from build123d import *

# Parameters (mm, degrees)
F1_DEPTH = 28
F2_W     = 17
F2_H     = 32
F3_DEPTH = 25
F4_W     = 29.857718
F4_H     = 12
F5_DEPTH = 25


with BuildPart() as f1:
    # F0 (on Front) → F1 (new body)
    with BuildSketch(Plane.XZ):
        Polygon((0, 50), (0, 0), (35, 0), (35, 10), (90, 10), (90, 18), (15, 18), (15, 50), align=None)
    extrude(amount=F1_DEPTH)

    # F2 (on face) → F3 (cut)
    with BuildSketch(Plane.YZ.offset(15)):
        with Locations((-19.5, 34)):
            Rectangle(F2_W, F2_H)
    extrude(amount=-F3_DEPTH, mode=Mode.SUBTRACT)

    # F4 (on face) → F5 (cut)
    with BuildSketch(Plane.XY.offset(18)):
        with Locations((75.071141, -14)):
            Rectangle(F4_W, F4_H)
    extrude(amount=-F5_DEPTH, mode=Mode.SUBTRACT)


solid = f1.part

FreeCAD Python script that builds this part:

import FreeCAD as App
import Part
import Sketcher
from FreeCAD import Vector
Q = App.Units.Quantity

doc = App.newDocument("Part")
body = doc.addObject("PartDesign::Body", "Body")

# Sketch on XZ plane
sketch1 = body.newObject("Sketcher::SketchObject", "Sketch")
sketch1.AttachmentSupport = (doc.getObject("XZ_Plane"), [""])
sketch1.MapMode = "FlatFace"
sketch1.addGeometry(Part.LineSegment(Vector(0, 50, 0), Vector(0, 0, 0)), False)
sketch1.addGeometry(Part.LineSegment(Vector(0, 0, 0), Vector(35, 0, 0)), False)
sketch1.addGeometry(Part.LineSegment(Vector(35, 0, 0), Vector(35, 10, 0)), False)
sketch1.addGeometry(Part.LineSegment(Vector(35, 10, 0), Vector(90, 10, 0)), False)
sketch1.addGeometry(Part.LineSegment(Vector(90, 10, 0), Vector(90, 18, 0)), False)
sketch1.addGeometry(Part.LineSegment(Vector(90, 18, 0), Vector(15, 18, 0)), False)
sketch1.addGeometry(Part.LineSegment(Vector(15, 18, 0), Vector(15, 50, 0)), False)
sketch1.addGeometry(Part.LineSegment(Vector(15, 50, 0), Vector(0, 50, 0)), False)
sketch1.addConstraint(Sketcher.Constraint("Coincident", 0, 2, 1, 1))
sketch1.addConstraint(Sketcher.Constraint("Coincident", 1, 2, 2, 1))
sketch1.addConstraint(Sketcher.Constraint("Coincident", 2, 2, 3, 1))
sketch1.addConstraint(Sketcher.Constraint("Coincident", 3, 2, 4, 1))
sketch1.addConstraint(Sketcher.Constraint("Coincident", 4, 2, 5, 1))
sketch1.addConstraint(Sketcher.Constraint("Coincident", 5, 2, 6, 1))
sketch1.addConstraint(Sketcher.Constraint("Coincident", 6, 2, 7, 1))
sketch1.addConstraint(Sketcher.Constraint("Coincident", 7, 2, 0, 1))
sketch1.addConstraint(Sketcher.Constraint("Vertical", 0))
sketch1.addConstraint(Sketcher.Constraint("Horizontal", 1))
sketch1.addConstraint(Sketcher.Constraint("Vertical", 2))
sketch1.addConstraint(Sketcher.Constraint("Horizontal", 3))
sketch1.addConstraint(Sketcher.Constraint("Vertical", 4))
sketch1.addConstraint(Sketcher.Constraint("Horizontal", 5))
sketch1.addConstraint(Sketcher.Constraint("Vertical", 6))
sketch1.addConstraint(Sketcher.Constraint("Horizontal", 7))
sketch1.addConstraint(Sketcher.Constraint("Coincident", 0, 2, -1, 1))
sketch1.addConstraint(Sketcher.Constraint("DistanceX", 1, 1, 1, 2, Q("35 mm")))
sketch1.addConstraint(Sketcher.Constraint("DistanceX", 3, 1, 3, 2, Q("55 mm")))
sketch1.addConstraint(Sketcher.Constraint("DistanceX", 5, 2, 5, 1, Q("75 mm")))
sketch1.addConstraint(Sketcher.Constraint("DistanceY", 0, 2, 0, 1, Q("50 mm")))
sketch1.addConstraint(Sketcher.Constraint("DistanceY", 2, 1, 2, 2, Q("10 mm")))
sketch1.addConstraint(Sketcher.Constraint("DistanceY", 4, 1, 4, 2, Q("8 mm")))
pad1 = body.newObject("PartDesign::Pad", "Pad")
pad1.Profile = sketch1
pad1.Length = 28

# Sketch on YZ plane
sketch2 = body.newObject("Sketcher::SketchObject", "Sketch001")
sketch2.AttachmentSupport = (doc.getObject("YZ_Plane"), [""])
sketch2.MapMode = "FlatFace"
sketch2.AttachmentOffset = App.Placement(Vector(0, 0, 15), App.Rotation())
sketch2.addGeometry(Part.LineSegment(Vector(-28, 50, 0), Vector(-28, 18, 0)), False)
sketch2.addGeometry(Part.LineSegment(Vector(-28, 18, 0), Vector(-11, 18, 0)), False)
sketch2.addGeometry(Part.LineSegment(Vector(-11, 18, 0), Vector(-11, 50, 0)), False)
sketch2.addGeometry(Part.LineSegment(Vector(-11, 50, 0), Vector(-28, 50, 0)), False)
sketch2.addConstraint(Sketcher.Constraint("Coincident", 0, 2, 1, 1))
sketch2.addConstraint(Sketcher.Constraint("Coincident", 1, 2, 2, 1))
sketch2.addConstraint(Sketcher.Constraint("Coincident", 2, 2, 3, 1))
sketch2.addConstraint(Sketcher.Constraint("Coincident", 3, 2, 0, 1))
sketch2.addConstraint(Sketcher.Constraint("Vertical", 0))
sketch2.addConstraint(Sketcher.Constraint("Horizontal", 1))
sketch2.addConstraint(Sketcher.Constraint("Vertical", 2))
sketch2.addConstraint(Sketcher.Constraint("Horizontal", 3))
sketch2.addConstraint(Sketcher.Constraint("DistanceX", 1, 1, 1, 2, Q("17 mm")))
sketch2.addConstraint(Sketcher.Constraint("DistanceY", 0, 2, 0, 1, Q("32 mm")))
sketch2.addConstraint(Sketcher.Constraint("DistanceX", 0, 2, -1, 1, Q("28 mm")))
sketch2.addConstraint(Sketcher.Constraint("DistanceY", -1, 1, 0, 2, Q("18 mm")))
pocket1 = body.newObject("PartDesign::Pocket", "Pocket")
pocket1.Profile = sketch2
pocket1.Length = 25

# Sketch on XY plane
sketch3 = body.newObject("Sketcher::SketchObject", "Sketch002")
sketch3.AttachmentSupport = (doc.getObject("XY_Plane"), [""])
sketch3.MapMode = "FlatFace"
sketch3.AttachmentOffset = App.Placement(Vector(0, 0, 18), App.Rotation())
sketch3.addGeometry(Part.LineSegment(Vector(60.142282, -8, 0), Vector(60.142282, -20, 0)), False)
sketch3.addGeometry(Part.LineSegment(Vector(60.142282, -20, 0), Vector(90, -20, 0)), False)
sketch3.addGeometry(Part.LineSegment(Vector(90, -20, 0), Vector(90, -8, 0)), False)
sketch3.addGeometry(Part.LineSegment(Vector(90, -8, 0), Vector(60.142282, -8, 0)), False)
sketch3.addConstraint(Sketcher.Constraint("Coincident", 0, 2, 1, 1))
sketch3.addConstraint(Sketcher.Constraint("Coincident", 1, 2, 2, 1))
sketch3.addConstraint(Sketcher.Constraint("Coincident", 2, 2, 3, 1))
sketch3.addConstraint(Sketcher.Constraint("Coincident", 3, 2, 0, 1))
sketch3.addConstraint(Sketcher.Constraint("Vertical", 0))
sketch3.addConstraint(Sketcher.Constraint("Horizontal", 1))
sketch3.addConstraint(Sketcher.Constraint("Vertical", 2))
sketch3.addConstraint(Sketcher.Constraint("Horizontal", 3))
sketch3.addConstraint(Sketcher.Constraint("DistanceY", 0, 2, 0, 1, Q("12 mm")))
sketch3.addConstraint(Sketcher.Constraint("DistanceY", 0, 2, -1, 1, Q("20 mm")))
sketch3.addConstraint(Sketcher.Constraint("DistanceX", -1, 1, 1, 2, Q("90 mm")))
sketch3.addConstraint(Sketcher.Constraint("DistanceX", 1, 1, 1, 2, Q("29.857718 mm")))
pocket2 = body.newObject("PartDesign::Pocket", "Pocket001")
pocket2.Profile = sketch3
pocket2.Length = 25

doc.recompute()
